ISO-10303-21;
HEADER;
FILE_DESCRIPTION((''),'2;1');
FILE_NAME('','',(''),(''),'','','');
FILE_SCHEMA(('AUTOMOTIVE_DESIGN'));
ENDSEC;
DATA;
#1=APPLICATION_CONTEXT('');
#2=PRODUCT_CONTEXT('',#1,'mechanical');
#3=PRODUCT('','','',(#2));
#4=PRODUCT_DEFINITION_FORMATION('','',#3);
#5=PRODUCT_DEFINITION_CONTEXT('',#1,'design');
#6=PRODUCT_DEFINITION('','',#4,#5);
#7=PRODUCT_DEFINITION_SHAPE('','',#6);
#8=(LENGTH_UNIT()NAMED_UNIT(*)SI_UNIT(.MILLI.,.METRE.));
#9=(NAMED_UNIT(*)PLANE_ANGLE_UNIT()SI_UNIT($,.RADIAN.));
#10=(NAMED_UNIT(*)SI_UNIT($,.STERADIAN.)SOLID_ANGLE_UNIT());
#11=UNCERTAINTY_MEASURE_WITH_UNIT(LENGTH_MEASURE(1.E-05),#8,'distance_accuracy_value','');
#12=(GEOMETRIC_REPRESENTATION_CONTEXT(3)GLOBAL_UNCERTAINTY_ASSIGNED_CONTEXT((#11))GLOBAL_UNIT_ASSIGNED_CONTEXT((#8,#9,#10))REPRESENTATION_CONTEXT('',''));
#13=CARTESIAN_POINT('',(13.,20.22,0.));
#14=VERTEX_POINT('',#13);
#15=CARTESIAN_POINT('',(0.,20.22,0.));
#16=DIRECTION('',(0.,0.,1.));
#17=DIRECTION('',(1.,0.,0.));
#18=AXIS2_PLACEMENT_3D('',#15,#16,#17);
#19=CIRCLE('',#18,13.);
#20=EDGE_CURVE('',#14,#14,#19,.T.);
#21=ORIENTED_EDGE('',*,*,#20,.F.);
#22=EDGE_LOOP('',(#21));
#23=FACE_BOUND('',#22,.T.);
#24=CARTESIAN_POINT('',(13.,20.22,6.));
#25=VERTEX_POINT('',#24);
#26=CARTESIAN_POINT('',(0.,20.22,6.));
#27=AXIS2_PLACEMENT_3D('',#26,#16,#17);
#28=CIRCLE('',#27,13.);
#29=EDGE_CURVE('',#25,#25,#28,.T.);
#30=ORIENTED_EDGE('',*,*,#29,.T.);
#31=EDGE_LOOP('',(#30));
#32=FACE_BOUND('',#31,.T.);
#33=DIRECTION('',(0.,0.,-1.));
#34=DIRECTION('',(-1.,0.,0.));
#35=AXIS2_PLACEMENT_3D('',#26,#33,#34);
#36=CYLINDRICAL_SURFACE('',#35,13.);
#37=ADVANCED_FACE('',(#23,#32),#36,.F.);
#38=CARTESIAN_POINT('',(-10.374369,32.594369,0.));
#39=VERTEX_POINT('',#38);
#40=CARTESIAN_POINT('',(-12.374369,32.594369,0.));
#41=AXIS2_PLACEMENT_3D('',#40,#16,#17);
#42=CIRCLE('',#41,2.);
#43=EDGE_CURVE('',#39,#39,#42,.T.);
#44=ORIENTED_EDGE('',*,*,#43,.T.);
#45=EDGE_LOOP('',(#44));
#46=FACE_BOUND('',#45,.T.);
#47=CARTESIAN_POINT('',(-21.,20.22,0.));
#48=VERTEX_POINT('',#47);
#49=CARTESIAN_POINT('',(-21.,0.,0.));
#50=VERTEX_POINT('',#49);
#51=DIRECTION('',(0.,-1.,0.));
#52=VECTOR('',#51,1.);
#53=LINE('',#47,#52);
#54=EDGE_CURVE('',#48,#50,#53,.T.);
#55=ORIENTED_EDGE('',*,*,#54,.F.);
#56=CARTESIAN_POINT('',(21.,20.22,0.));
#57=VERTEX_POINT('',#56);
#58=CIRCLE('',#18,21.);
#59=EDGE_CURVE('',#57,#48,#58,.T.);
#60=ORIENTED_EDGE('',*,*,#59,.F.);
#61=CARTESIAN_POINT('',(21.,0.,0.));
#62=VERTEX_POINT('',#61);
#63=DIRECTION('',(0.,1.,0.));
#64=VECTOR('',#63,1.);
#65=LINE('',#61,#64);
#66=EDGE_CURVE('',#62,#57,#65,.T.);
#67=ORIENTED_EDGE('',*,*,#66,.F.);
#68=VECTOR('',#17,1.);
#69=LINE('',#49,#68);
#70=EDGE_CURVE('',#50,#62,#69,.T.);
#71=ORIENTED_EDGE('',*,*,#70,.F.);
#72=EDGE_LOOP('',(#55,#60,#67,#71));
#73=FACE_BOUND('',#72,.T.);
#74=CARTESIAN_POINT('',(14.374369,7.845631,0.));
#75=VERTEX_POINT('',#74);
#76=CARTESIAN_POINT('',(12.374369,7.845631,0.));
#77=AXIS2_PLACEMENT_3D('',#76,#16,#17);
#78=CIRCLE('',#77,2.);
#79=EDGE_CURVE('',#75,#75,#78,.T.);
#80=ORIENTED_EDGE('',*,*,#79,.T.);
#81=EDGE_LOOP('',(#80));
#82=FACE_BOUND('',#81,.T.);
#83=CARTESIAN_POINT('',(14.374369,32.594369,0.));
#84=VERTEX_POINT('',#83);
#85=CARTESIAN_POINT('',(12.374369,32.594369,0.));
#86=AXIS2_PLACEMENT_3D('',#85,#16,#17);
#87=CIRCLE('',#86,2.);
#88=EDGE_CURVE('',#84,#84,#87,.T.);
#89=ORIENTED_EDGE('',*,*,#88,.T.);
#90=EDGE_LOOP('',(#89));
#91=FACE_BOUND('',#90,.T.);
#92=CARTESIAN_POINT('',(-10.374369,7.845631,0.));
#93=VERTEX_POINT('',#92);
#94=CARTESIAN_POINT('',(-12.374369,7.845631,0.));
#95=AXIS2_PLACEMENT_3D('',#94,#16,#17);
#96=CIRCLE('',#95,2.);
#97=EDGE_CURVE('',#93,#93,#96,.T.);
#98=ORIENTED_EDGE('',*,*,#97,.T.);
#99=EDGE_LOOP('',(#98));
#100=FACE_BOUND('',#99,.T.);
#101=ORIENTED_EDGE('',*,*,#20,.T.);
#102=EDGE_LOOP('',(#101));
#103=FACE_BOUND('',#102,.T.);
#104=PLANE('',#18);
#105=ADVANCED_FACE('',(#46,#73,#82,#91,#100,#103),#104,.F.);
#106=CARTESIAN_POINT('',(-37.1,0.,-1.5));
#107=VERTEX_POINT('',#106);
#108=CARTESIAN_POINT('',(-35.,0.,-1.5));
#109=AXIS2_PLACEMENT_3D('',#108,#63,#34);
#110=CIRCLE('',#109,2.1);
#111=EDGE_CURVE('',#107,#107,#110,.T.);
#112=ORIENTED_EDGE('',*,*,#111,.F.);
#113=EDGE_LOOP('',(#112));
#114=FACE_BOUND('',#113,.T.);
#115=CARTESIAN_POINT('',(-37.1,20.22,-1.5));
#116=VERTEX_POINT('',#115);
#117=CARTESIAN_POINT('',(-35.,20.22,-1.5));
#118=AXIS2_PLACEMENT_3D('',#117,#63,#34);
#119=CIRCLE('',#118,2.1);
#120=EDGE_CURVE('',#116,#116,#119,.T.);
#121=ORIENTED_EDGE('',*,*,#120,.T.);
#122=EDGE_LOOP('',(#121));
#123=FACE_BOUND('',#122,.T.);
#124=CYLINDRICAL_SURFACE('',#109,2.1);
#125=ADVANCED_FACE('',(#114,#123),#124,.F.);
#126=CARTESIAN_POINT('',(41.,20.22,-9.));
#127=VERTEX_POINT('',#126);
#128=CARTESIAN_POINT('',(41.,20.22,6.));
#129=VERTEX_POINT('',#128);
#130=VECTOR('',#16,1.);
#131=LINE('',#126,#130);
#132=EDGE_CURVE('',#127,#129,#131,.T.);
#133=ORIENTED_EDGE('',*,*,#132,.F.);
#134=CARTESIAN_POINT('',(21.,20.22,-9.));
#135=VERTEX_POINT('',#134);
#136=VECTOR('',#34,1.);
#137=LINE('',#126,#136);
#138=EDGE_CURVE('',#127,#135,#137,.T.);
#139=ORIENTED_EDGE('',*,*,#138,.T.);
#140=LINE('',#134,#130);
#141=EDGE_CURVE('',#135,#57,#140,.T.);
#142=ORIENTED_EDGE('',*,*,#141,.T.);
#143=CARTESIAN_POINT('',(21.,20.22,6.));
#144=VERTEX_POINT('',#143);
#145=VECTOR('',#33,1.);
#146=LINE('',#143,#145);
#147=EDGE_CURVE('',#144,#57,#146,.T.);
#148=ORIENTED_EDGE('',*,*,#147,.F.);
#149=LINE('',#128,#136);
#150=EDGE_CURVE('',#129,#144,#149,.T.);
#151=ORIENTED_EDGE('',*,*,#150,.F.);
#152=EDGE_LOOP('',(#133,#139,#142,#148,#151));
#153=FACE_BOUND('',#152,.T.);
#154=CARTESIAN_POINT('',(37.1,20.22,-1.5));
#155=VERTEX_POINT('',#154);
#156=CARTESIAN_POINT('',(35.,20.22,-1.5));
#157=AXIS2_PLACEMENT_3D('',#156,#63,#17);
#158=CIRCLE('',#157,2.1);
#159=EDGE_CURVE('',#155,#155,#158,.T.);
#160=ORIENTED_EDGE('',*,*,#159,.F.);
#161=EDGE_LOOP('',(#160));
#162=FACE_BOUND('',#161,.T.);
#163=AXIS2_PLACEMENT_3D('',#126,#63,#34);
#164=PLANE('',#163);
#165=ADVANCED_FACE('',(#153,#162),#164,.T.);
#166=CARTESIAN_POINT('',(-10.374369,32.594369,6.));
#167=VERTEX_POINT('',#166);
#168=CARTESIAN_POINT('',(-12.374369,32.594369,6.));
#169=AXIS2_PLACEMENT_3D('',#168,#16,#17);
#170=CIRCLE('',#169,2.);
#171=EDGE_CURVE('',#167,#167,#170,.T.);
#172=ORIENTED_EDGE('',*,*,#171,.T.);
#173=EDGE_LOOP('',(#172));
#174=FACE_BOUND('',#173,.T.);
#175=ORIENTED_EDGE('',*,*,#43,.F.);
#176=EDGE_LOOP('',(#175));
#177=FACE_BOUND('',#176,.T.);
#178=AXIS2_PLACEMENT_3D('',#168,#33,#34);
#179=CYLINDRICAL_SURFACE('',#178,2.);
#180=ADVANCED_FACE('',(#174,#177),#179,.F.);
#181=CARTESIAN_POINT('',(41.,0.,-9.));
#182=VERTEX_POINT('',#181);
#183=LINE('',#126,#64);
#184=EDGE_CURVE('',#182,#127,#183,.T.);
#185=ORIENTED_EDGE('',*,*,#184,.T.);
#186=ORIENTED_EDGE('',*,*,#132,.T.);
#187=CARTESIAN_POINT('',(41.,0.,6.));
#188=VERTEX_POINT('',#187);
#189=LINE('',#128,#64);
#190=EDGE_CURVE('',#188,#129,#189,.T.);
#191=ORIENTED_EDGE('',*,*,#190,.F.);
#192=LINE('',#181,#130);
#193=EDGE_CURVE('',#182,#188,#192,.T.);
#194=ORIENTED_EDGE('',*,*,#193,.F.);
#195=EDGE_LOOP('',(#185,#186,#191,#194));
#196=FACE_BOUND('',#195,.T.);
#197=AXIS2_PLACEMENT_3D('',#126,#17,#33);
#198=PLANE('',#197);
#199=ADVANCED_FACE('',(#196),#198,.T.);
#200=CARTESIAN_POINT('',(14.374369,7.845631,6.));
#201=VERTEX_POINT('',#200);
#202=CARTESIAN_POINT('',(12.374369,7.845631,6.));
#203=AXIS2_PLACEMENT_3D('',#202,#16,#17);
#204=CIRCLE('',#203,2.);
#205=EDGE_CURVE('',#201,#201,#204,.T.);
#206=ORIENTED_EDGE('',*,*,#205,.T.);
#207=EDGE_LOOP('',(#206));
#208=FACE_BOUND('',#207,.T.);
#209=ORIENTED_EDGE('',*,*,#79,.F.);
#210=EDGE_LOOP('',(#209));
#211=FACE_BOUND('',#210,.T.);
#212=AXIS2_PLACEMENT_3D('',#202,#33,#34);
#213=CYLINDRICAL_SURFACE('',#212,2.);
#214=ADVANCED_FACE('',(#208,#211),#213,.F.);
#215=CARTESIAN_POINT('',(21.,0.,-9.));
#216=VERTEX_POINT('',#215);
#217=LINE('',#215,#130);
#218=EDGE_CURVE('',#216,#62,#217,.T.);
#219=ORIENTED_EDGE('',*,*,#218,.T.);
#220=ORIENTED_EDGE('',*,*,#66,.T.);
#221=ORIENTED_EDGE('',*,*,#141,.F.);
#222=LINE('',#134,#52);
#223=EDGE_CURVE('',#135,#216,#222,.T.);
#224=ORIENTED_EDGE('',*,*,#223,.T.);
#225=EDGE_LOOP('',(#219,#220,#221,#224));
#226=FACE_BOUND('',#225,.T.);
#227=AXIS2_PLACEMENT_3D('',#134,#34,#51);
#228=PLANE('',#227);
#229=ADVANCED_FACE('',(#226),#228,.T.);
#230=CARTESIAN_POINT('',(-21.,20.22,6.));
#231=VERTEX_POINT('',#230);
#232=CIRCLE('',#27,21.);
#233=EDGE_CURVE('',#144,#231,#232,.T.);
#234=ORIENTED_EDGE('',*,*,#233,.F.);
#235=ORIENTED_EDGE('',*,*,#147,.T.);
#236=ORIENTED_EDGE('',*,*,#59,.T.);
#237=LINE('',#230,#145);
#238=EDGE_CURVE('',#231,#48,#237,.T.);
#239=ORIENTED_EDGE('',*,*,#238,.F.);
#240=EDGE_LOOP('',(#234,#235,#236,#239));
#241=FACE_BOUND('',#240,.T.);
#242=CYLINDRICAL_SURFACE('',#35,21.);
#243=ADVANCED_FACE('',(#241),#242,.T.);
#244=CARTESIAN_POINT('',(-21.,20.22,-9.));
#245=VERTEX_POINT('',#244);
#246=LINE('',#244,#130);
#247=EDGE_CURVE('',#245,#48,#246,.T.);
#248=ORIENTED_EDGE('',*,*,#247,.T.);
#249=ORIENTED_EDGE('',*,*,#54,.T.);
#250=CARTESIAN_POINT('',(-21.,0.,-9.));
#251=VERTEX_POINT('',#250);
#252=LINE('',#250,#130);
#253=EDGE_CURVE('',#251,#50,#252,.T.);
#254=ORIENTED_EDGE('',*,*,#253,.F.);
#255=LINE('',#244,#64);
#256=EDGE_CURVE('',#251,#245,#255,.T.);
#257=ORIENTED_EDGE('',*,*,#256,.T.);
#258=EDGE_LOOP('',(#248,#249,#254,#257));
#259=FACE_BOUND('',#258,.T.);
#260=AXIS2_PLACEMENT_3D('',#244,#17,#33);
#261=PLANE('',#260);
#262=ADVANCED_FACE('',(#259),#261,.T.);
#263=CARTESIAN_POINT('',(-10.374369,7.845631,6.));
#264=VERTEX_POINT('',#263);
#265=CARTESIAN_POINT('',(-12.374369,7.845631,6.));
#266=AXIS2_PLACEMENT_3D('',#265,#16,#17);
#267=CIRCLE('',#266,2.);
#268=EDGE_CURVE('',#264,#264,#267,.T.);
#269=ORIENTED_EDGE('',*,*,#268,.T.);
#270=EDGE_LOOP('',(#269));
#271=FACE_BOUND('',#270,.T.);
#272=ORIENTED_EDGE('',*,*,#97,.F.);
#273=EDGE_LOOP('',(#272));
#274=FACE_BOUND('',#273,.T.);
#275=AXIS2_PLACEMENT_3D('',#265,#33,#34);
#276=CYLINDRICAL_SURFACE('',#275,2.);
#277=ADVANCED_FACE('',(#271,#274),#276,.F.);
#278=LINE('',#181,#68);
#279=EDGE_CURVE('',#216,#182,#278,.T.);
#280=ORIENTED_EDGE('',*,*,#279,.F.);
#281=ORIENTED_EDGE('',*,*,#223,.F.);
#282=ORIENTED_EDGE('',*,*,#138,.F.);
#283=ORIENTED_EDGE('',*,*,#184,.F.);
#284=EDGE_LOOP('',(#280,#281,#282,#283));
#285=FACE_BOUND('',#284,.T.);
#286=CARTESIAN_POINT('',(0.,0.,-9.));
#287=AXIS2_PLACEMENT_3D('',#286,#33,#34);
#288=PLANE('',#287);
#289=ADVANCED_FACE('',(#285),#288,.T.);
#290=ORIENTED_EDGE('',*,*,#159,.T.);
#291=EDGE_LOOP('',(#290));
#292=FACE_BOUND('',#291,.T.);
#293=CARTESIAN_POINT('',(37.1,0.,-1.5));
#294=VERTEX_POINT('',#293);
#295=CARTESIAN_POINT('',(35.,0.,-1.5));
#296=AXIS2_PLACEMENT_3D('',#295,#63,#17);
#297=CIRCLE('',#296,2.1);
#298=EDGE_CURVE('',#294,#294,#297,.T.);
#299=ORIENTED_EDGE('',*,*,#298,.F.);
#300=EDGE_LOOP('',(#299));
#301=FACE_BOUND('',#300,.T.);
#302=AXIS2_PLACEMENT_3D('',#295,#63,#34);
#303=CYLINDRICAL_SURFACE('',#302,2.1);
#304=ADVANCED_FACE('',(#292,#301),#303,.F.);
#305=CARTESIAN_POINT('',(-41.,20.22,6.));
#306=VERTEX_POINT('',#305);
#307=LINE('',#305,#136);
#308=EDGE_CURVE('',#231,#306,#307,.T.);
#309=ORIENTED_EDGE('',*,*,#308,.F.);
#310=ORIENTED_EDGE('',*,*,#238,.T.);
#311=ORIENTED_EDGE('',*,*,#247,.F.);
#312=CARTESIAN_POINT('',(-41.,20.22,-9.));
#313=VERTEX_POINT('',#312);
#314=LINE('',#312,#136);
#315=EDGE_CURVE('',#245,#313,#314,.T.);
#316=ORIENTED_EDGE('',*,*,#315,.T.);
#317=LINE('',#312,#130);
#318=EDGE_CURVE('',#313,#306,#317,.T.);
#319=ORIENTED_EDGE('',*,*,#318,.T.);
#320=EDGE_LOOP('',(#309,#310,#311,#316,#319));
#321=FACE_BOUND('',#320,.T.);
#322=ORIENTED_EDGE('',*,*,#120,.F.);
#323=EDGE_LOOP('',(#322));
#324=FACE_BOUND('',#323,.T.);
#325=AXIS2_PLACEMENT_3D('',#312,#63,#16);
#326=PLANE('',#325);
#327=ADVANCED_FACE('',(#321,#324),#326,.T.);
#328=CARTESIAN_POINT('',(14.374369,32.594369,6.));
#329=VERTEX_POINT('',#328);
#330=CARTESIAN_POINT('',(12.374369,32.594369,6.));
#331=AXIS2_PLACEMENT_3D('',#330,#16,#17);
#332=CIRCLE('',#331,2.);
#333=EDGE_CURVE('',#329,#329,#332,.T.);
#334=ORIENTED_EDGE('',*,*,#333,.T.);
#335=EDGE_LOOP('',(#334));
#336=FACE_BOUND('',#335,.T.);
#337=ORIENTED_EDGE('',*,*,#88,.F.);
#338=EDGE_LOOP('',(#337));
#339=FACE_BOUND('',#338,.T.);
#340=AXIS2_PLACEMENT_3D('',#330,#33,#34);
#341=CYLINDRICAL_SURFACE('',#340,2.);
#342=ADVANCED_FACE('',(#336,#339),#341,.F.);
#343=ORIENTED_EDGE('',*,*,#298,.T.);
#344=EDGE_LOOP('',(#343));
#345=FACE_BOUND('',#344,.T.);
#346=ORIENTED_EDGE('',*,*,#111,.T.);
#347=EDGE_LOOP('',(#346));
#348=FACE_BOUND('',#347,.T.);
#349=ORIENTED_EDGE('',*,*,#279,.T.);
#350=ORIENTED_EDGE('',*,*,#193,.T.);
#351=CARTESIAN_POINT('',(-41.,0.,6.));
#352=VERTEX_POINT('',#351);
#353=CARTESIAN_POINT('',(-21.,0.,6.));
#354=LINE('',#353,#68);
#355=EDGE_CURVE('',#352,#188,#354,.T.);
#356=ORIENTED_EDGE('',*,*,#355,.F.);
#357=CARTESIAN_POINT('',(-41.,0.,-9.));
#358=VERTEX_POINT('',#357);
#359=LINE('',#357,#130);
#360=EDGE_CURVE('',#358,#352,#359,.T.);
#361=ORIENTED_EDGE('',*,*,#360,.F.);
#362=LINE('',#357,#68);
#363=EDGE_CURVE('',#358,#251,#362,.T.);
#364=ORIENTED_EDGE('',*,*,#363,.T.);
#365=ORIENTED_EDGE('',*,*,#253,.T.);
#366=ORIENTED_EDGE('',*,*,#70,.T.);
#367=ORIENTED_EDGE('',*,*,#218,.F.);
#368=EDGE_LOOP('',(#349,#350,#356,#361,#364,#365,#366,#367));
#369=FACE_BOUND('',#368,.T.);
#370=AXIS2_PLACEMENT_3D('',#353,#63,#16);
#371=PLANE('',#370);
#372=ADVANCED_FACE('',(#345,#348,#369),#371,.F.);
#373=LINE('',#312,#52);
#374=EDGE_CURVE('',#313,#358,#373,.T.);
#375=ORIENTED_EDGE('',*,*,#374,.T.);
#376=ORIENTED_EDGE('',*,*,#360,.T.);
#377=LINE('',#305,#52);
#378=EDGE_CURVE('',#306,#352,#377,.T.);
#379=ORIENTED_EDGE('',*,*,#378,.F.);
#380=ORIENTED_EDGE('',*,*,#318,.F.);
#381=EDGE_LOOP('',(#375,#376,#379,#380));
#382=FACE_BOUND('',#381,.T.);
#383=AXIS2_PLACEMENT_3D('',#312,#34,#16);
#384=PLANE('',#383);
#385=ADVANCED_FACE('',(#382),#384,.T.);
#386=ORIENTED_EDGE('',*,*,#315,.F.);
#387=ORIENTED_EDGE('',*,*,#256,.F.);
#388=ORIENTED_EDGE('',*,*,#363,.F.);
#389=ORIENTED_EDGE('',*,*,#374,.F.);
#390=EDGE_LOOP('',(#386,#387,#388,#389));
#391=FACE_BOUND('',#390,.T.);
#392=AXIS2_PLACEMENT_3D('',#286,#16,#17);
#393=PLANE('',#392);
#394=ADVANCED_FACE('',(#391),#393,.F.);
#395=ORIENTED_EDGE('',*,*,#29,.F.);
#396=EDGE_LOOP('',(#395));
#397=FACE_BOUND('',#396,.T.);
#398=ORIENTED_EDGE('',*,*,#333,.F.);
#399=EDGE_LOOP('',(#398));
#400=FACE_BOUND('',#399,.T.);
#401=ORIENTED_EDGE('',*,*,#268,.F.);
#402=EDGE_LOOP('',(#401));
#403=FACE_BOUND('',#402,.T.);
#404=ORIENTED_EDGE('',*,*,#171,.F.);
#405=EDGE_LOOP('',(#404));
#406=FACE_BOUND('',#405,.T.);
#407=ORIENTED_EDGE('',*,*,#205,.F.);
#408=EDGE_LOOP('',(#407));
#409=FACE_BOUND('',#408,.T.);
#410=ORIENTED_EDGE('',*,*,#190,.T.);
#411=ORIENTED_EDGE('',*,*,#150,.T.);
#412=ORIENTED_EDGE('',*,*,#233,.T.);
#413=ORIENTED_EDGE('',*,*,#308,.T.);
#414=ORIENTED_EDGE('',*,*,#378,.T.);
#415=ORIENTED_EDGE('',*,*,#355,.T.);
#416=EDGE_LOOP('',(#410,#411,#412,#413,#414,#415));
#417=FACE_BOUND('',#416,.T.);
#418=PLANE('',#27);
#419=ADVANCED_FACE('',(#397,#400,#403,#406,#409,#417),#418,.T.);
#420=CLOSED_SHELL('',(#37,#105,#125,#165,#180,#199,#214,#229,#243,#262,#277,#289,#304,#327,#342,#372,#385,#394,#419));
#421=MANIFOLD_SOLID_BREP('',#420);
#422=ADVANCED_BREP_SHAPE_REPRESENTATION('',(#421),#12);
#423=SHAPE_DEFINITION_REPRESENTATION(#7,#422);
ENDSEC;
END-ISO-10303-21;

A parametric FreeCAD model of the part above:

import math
import FreeCAD as App
import Part
import Sketcher
from FreeCAD import Vector


def add_polygon(sketch, points):
    """Adds a closed chain of lines whose ends are joined by coincident constraints."""
    first, n = sketch.GeometryCount, len(points)
    for a, b in zip(points, points[1:] + points[:1]):
        sketch.addGeometry(Part.LineSegment(App.Vector(*a, 0), App.Vector(*b, 0)), False)
    for i in range(n):
        sketch.addConstraint(Sketcher.Constraint("Coincident", first + i, 2, first + (i + 1) % n, 1))

doc = App.newDocument("Part")
body = doc.addObject("PartDesign::Body", "Body")

sketch1 = body.newObject("Sketcher::SketchObject", "Sketch")
sketch1.AttachmentSupport = (doc.getObject("XY_Plane"), [""])
sketch1.MapMode = "FlatFace"
sketch1.addGeometry(Part.LineSegment(Vector(-21, 20.2, 0), Vector(-21, 0, 0)), False)
sketch1.addGeometry(Part.LineSegment(Vector(-21, 0, 0), Vector(21, 0, 0)), False)
sketch1.addGeometry(Part.LineSegment(Vector(21, 0, 0), Vector(21, 20.2, 0)), False)
sketch1.addGeometry(Part.ArcOfCircle(Part.Circle(Vector(0, 20.2, 0), Vector(0, 0, 1), 21), math.radians(0), math.radians(180)), False)
sketch1.addGeometry(Part.Circle(Vector(-12.4, 7.8, 0), Vector(0, 0, 1), 2), False)
sketch1.addGeometry(Part.Circle(Vector(12.4, 7.8, 0), Vector(0, 0, 1), 2), False)
sketch1.addGeometry(Part.Circle(Vector(-12.4, 32.6, 0), Vector(0, 0, 1), 2), False)
sketch1.addGeometry(Part.Circle(Vector(0, 20.2, 0), Vector(0, 0, 1), 13), False)
sketch1.addGeometry(Part.Circle(Vector(12.4, 32.6, 0), Vector(0, 0, 1), 2), False)
sketch1.addConstraint(Sketcher.Constraint("Coincident", 0, 2, 1, 1))
sketch1.addConstraint(Sketcher.Constraint("Coincident", 1, 2, 2, 1))
sketch1.addConstraint(Sketcher.Constraint("Tangent", 2, 2, 3, 1))
sketch1.addConstraint(Sketcher.Constraint("Tangent", 3, 2, 0, 1))
sketch1.addConstraint(Sketcher.Constraint("Vertical", 0))
sketch1.addConstraint(Sketcher.Constraint("Horizontal", 1))
sketch1.addConstraint(Sketcher.Constraint("Vertical", 2))
sketch1.addConstraint(Sketcher.Constraint("Coincident", 7, 3, 3, 3))
sketch1.addConstraint(Sketcher.Constraint("Equal", 4, 5))
sketch1.addConstraint(Sketcher.Constraint("Equal", 5, 6))
sketch1.addConstraint(Sketcher.Constraint("Equal", 6, 8))
sketch1.addConstraint(Sketcher.Constraint("Symmetric", 0, 2, 1, 2, -1, 1))
sketch1.addConstraint(Sketcher.Constraint("Symmetric", 4, 3, 5, 3, -2))
sketch1.addConstraint(Sketcher.Constraint("Symmetric", 6, 3, 8, 3, -2))
sketch1.addConstraint(Sketcher.Constraint("Vertical", 4, 3, 6, 3))
sketch1.addConstraint(Sketcher.Constraint("Diameter", 4, 4.0))
sketch1.addConstraint(Sketcher.Constraint("Diameter", 7, 26.0))
sketch1.addConstraint(Sketcher.Constraint("Radius", 3, 21.0))
sketch1.addConstraint(Sketcher.Constraint("DistanceY", 0, 2, 0, 1, 20.22))
sketch1.addConstraint(Sketcher.Constraint("DistanceX", 4, 3, -1, 1, 12.374369))
sketch1.addConstraint(Sketcher.Constraint("DistanceY", -1, 1, 4, 3, 7.845631))
sketch1.addConstraint(Sketcher.Constraint("DistanceY", -1, 1, 6, 3, 32.594369))
pad1 = body.newObject("PartDesign::Pad", "Pad")
pad1.Profile = sketch1
pad1.Length = 6

sketch2 = body.newObject("Sketcher::SketchObject", "Sketch001")
sketch2.AttachmentSupport = (doc.getObject("XY_Plane"), [""])
sketch2.MapMode = "FlatFace"
sketch2.AttachmentOffset = App.Placement(Vector(0, 0, 6), App.Rotation())
add_polygon(sketch2, [(-41, 20), (-41, 0), (-21, 0), (-21, 20)])
add_polygon(sketch2, [(21, 20), (21, 0), (41, 0), (41, 20)])
sketch2.addConstraint(Sketcher.Constraint("Vertical", 0))
sketch2.addConstraint(Sketcher.Constraint("Horizontal", 1))
sketch2.addConstraint(Sketcher.Constraint("Vertical", 2))
sketch2.addConstraint(Sketcher.Constraint("Horizontal", 3))
sketch2.addConstraint(Sketcher.Constraint("Vertical", 4))
sketch2.addConstraint(Sketcher.Constraint("Horizontal", 5))
sketch2.addConstraint(Sketcher.Constraint("Vertical", 6))
sketch2.addConstraint(Sketcher.Constraint("Horizontal", 7))
sketch2.addConstraint(Sketcher.Constraint("Symmetric", 1, 2, 4, 2, -1, 1))
sketch2.addConstraint(Sketcher.Constraint("Symmetric", 0, 2, 5, 2, -2))
sketch2.addConstraint(Sketcher.Constraint("Horizontal", 3, 2, 6, 2))
sketch2.addConstraint(Sketcher.Constraint("DistanceX", 1, 1, 1, 2, 20.0))
sketch2.addConstraint(Sketcher.Constraint("DistanceX", 0, 2, -1, 1, 41.0))
sketch2.addConstraint(Sketcher.Constraint("DistanceY", 0, 2, 0, 1, 20.22))
pad2 = body.newObject("PartDesign::Pad", "Pad001")
pad2.Profile = sketch2
pad2.Length = 15
pad2.Reversed = True

sketch3 = body.newObject("Sketcher::SketchObject", "Sketch002")
sketch3.AttachmentSupport = (doc.getObject("XZ_Plane"), [""])
sketch3.MapMode = "FlatFace"
sketch3.AttachmentOffset = App.Placement(Vector(0, 0, -20.22), App.Rotation())
sketch3.addGeometry(Part.Circle(Vector(-35, -1.5, 0), Vector(0, 0, 1), 2.1), False)
sketch3.addGeometry(Part.Circle(Vector(35, -1.5, 0), Vector(0, 0, 1), 2.1), False)
sketch3.addConstraint(Sketcher.Constraint("Equal", 0, 1))
sketch3.addConstraint(Sketcher.Constraint("Symmetric", 0, 3, 1, 3, -2))
sketch3.addConstraint(Sketcher.Constraint("Diameter", 0, 4.2))
sketch3.addConstraint(Sketcher.Constraint("DistanceX", 0, 3, -1, 1, 35.0))
sketch3.addConstraint(Sketcher.Constraint("DistanceY", 0, 3, -1, 1, 1.5))
pocket1 = body.newObject("PartDesign::Pocket", "Pocket")
pocket1.Profile = sketch3
pocket1.Type = "ThroughAll"
pocket1.Reversed = True

doc.recompute()
